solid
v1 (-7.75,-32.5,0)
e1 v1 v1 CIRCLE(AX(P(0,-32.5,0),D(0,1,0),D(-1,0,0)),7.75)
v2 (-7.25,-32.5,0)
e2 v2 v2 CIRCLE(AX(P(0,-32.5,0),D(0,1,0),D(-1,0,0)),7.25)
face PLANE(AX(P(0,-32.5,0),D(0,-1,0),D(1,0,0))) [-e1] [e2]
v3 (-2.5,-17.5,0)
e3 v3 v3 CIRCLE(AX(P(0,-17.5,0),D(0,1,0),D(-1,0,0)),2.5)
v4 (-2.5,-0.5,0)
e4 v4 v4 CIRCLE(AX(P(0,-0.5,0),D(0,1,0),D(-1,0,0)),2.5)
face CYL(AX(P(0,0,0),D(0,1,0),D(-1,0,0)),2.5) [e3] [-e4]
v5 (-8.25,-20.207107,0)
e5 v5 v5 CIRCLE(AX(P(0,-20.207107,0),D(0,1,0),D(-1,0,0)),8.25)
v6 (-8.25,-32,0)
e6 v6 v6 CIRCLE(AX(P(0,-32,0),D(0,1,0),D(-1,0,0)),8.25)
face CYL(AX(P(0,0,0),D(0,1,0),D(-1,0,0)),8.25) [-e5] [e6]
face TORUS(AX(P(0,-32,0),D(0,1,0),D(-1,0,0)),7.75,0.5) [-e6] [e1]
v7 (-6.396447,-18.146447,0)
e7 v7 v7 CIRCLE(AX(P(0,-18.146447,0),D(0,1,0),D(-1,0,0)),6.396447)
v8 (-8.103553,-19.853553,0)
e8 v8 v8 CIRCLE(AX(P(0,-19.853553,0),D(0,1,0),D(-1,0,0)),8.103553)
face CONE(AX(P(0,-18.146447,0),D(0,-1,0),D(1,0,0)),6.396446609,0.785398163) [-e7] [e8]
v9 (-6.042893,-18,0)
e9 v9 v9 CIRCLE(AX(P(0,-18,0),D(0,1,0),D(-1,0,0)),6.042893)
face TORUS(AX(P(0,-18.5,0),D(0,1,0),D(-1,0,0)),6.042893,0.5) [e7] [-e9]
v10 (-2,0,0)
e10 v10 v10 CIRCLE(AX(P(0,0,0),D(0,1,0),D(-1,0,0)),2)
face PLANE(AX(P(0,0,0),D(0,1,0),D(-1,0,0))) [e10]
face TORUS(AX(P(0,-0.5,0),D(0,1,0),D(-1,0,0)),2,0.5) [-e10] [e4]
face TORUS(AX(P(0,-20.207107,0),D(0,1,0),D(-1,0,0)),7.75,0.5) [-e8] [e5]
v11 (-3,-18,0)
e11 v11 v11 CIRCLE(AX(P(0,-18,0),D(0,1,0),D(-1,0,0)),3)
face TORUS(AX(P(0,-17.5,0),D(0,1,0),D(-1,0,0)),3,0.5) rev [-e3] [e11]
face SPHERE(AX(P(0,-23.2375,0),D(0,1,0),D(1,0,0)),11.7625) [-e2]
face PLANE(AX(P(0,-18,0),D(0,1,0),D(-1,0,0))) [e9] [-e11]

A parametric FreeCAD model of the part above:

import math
import FreeCAD as App
import Part
import Sketcher
Q = App.Units.Quantity

doc = App.newDocument("Part")
body = doc.addObject("PartDesign::Body", "Body")

sketch1 = body.newObject("Sketcher::SketchObject", "Sketch")
sketch1.AttachmentSupport = (doc.getObject("XY_Plane"), [""])
sketch1.MapMode = "FlatFace"
sketch1.addGeometry(Part.ArcOfCircle(Part.Circle(App.Vector(7.75, -32, 0), App.Vector(0, 0, 1), 0.5), math.radians(-90), math.radians(0)), False)
sketch1.addGeometry(Part.LineSegment(App.Vector(8.25, -32, 0), App.Vector(8.25, -20.207107, 0)), False)
sketch1.addGeometry(Part.ArcOfCircle(Part.Circle(App.Vector(7.75, -20.207107, 0), App.Vector(0, 0, 1), 0.5), math.radians(0), math.radians(45)), False)
sketch1.addGeometry(Part.LineSegment(App.Vector(8.103553, -19.853553, 0), App.Vector(6.396447, -18.146447, 0)), False)
sketch1.addGeometry(Part.ArcOfCircle(Part.Circle(App.Vector(6.042893, -18.5, 0), App.Vector(0, 0, 1), 0.5), math.radians(45), math.radians(90)), False)
sketch1.addGeometry(Part.LineSegment(App.Vector(6.042893, -18, 0), App.Vector(3, -18, 0)), False)
sketch1.addGeometry(Part.ArcOfCircle(Part.Circle(App.Vector(3, -17.5, 0), App.Vector(0, 0, 1), 0.5), math.radians(180), math.radians(270)), False)
sketch1.addGeometry(Part.LineSegment(App.Vector(2.5, -17.5, 0), App.Vector(2.5, -0.5, 0)), False)
sketch1.addGeometry(Part.ArcOfCircle(Part.Circle(App.Vector(2, -0.5, 0), App.Vector(0, 0, 1), 0.5), math.radians(0), math.radians(90)), False)
sketch1.addGeometry(Part.LineSegment(App.Vector(2, 0, 0), App.Vector(0, 0, 0)), False)
sketch1.addGeometry(Part.LineSegment(App.Vector(0, 0, 0), App.Vector(0, -35, 0)), False)
sketch1.addGeometry(Part.ArcOfCircle(Part.Circle(App.Vector(0, -23.2375, 0), App.Vector(0, 0, 1), 11.7625), math.radians(-90), math.radians(-51.948788)), False)
sketch1.addGeometry(Part.LineSegment(App.Vector(7.25, -32.5, 0), App.Vector(7.75, -32.5, 0)), False)
sketch1.addConstraint(Sketcher.Constraint("Tangent", 0, 2, 1, 1))
sketch1.addConstraint(Sketcher.Constraint("Tangent", 1, 2, 2, 1))
sketch1.addConstraint(Sketcher.Constraint("Tangent", 2, 2, 3, 1))
sketch1.addConstraint(Sketcher.Constraint("Tangent", 3, 2, 4, 1))
sketch1.addConstraint(Sketcher.Constraint("Tangent", 4, 2, 5, 1))
sketch1.addConstraint(Sketcher.Constraint("Tangent", 5, 2, 6, 2))
sketch1.addConstraint(Sketcher.Constraint("Tangent", 6, 1, 7, 1))
sketch1.addConstraint(Sketcher.Constraint("Tangent", 7, 2, 8, 1))
sketch1.addConstraint(Sketcher.Constraint("Tangent", 8, 2, 9, 1))
sketch1.addConstraint(Sketcher.Constraint("Coincident", 9, 2, 10, 1))
sketch1.addConstraint(Sketcher.Constraint("Coincident", 10, 2, 11, 1))
sketch1.addConstraint(Sketcher.Constraint("Coincident", 11, 2, 12, 1))
sketch1.addConstraint(Sketcher.Constraint("Tangent", 12, 2, 0, 1))
sketch1.addConstraint(Sketcher.Constraint("Vertical", 1))
sketch1.addConstraint(Sketcher.Constraint("Horizontal", 5))
sketch1.addConstraint(Sketcher.Constraint("Vertical", 7))
sketch1.addConstraint(Sketcher.Constraint("Horizontal", 9))
sketch1.addConstraint(Sketcher.Constraint("Vertical", 10))
sketch1.addConstraint(Sketcher.Constraint("Horizontal", 12))
sketch1.addConstraint(Sketcher.Constraint("Coincident", 9, 2, -1, 1))
sketch1.addConstraint(Sketcher.Constraint("Equal", 0, 2))
sketch1.addConstraint(Sketcher.Constraint("Equal", 2, 4))
sketch1.addConstraint(Sketcher.Constraint("Equal", 4, 6))
sketch1.addConstraint(Sketcher.Constraint("Equal", 6, 8))
sketch1.addConstraint(Sketcher.Constraint("PointOnObject", 11, 3, -2))
sketch1.addConstraint(Sketcher.Constraint("Radius", 0, 0.5))
sketch1.addConstraint(Sketcher.Constraint("DistanceX", 9, 2, 9, 1, 2.0))
sketch1.addConstraint(Sketcher.Constraint("DistanceY", 7, 1, 7, 2, 17.0))
sketch1.addConstraint(Sketcher.Constraint("DistanceY", 10, 2, 10, 1, 35.0))
sketch1.addConstraint(Sketcher.Constraint("Angle", 3, Q("135 deg")))
sketch1.addConstraint(Sketcher.Constraint("DistanceX", 12, 1, 12, 2, 0.5))
sketch1.addConstraint(Sketcher.Constraint("DistanceY", 0, 3, -1, 1, 32.0))
sketch1.addConstraint(Sketcher.Constraint("Radius", 11, 11.7625))
sketch1.addConstraint(Sketcher.Constraint("DistanceX", 5, 2, 5, 1, 3.042893))
revolution = body.newObject("PartDesign::Revolution", "Revolution")
revolution.Profile = sketch1
revolution.ReferenceAxis = (sketch1, ["V_Axis"])
revolution.Angle = 360

doc.recompute()
